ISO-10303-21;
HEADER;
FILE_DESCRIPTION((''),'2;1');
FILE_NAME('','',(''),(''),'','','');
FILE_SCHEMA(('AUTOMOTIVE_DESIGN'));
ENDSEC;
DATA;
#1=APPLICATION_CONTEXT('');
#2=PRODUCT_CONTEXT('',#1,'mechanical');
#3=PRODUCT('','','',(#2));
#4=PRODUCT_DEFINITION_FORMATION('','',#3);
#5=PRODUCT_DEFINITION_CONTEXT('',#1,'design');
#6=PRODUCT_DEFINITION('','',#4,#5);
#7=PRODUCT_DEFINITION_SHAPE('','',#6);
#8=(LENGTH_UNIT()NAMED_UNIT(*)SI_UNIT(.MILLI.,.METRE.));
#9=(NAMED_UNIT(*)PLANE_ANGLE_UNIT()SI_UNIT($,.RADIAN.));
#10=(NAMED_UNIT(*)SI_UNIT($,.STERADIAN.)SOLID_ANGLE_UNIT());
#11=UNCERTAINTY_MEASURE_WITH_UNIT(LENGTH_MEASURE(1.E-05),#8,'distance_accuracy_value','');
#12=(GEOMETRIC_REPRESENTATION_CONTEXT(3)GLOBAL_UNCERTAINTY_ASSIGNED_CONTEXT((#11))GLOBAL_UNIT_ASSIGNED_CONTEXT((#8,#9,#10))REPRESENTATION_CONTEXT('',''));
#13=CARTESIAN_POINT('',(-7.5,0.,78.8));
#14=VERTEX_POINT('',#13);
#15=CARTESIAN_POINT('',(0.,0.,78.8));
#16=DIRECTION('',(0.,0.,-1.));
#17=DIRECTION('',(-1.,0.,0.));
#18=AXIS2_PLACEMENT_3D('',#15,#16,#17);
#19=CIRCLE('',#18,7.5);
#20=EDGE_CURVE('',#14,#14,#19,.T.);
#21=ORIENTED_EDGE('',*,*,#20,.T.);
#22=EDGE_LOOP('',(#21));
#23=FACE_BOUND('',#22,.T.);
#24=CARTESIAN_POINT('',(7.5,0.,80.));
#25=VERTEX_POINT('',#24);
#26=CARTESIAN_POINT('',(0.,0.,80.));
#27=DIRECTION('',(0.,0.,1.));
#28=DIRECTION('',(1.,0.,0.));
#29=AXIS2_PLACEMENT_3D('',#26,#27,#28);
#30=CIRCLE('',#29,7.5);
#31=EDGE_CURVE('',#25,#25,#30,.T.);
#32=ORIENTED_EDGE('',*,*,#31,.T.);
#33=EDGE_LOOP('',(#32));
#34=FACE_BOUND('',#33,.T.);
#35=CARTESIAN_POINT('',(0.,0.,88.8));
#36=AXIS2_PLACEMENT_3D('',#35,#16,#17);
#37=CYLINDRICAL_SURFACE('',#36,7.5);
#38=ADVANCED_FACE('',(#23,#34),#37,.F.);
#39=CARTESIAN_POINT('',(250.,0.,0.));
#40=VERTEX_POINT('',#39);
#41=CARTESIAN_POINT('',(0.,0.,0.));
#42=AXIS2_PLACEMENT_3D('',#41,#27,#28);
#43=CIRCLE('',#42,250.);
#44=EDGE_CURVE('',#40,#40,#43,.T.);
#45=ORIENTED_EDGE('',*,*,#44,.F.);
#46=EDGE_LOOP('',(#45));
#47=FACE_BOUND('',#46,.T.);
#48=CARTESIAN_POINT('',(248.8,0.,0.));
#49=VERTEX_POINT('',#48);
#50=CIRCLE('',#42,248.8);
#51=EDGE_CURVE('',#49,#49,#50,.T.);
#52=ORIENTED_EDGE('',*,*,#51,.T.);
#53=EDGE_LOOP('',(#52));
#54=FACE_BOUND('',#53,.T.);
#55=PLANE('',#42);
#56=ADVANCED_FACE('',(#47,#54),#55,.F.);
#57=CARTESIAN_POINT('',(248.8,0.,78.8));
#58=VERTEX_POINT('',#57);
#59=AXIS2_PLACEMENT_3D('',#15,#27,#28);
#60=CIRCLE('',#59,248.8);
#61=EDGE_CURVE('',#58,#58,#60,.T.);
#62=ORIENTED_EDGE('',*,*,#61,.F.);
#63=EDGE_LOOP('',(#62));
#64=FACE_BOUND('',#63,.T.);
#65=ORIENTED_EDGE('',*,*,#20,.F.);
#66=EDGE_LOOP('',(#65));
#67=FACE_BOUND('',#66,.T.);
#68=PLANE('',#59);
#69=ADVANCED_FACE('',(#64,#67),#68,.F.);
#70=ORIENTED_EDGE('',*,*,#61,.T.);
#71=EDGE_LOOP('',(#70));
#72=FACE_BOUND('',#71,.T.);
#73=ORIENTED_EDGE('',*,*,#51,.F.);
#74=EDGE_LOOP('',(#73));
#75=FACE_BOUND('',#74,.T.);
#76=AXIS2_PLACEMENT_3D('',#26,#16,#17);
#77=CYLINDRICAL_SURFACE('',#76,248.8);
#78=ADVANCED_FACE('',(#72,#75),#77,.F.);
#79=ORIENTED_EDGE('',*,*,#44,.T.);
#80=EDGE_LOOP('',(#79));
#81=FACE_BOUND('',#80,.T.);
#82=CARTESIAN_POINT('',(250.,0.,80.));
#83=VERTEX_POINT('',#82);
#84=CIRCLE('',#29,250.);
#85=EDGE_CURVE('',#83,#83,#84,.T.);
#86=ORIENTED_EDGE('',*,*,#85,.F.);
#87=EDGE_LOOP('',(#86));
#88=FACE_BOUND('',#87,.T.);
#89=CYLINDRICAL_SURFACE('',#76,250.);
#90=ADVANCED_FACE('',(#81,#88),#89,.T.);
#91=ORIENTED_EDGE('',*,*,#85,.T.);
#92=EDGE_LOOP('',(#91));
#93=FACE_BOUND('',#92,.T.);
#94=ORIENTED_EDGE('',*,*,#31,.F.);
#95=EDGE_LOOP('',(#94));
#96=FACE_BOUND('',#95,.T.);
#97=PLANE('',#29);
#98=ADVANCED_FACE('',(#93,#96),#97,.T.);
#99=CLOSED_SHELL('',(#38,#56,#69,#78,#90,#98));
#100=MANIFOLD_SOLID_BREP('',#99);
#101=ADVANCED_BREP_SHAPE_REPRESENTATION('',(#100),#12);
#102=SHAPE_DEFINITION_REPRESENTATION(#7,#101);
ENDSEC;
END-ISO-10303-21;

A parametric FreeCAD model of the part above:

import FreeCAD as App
import Part
import Sketcher
from FreeCAD import Vector


def faces_at(feature, points):
    """Names of the faces that lie closest to the given points."""
    faces = feature.Shape.Faces
    near = lambda p: min(range(len(faces)), key=lambda i: faces[i].distToShape(Part.Vertex(*p))[0])
    return sorted({f"Face{near(p) + 1}" for p in points})

doc = App.newDocument("Part")
body = doc.addObject("PartDesign::Body", "Body")

sketch1 = body.newObject("Sketcher::SketchObject", "Sketch")
sketch1.AttachmentSupport = (doc.getObject("XY_Plane"), [""])
sketch1.MapMode = "FlatFace"
sketch1.addGeometry(Part.Circle(Vector(0, 0, 0), Vector(0, 0, 1), 250), False)
sketch1.addConstraint(Sketcher.Constraint("Coincident", 0, 3, -1, 1))
sketch1.addConstraint(Sketcher.Constraint("Diameter", 0, 500.0))
pad1 = body.newObject("PartDesign::Pad", "Pad")
pad1.Profile = sketch1
pad1.Length = 80
doc.recompute()

thickness = body.newObject("PartDesign::Thickness", "Thickness")
thickness.Base = (pad1, faces_at(pad1, [(0, 0, 0)]))
thickness.Value = 1.2
thickness.Reversed = True
thickness.Join = "Intersection"

sketch2 = body.newObject("Sketcher::SketchObject", "Sketch001")
sketch2.AttachmentSupport = (doc.getObject("XY_Plane"), [""])
sketch2.MapMode = "FlatFace"
sketch2.AttachmentOffset = App.Placement(Vector(0, 0, 78.8), App.Rotation())
sketch2.addGeometry(Part.Circle(Vector(0, 0, 0), Vector(0, 0, 1), 8), False)
sketch2.addConstraint(Sketcher.Constraint("Coincident", 0, 3, -1, 1))
sketch2.addConstraint(Sketcher.Constraint("Diameter", 0, 15.0))
pocket1 = body.newObject("PartDesign::Pocket", "Pocket")
pocket1.Profile = sketch2
pocket1.Length = 10
pocket1.Reversed = True

doc.recompute()
